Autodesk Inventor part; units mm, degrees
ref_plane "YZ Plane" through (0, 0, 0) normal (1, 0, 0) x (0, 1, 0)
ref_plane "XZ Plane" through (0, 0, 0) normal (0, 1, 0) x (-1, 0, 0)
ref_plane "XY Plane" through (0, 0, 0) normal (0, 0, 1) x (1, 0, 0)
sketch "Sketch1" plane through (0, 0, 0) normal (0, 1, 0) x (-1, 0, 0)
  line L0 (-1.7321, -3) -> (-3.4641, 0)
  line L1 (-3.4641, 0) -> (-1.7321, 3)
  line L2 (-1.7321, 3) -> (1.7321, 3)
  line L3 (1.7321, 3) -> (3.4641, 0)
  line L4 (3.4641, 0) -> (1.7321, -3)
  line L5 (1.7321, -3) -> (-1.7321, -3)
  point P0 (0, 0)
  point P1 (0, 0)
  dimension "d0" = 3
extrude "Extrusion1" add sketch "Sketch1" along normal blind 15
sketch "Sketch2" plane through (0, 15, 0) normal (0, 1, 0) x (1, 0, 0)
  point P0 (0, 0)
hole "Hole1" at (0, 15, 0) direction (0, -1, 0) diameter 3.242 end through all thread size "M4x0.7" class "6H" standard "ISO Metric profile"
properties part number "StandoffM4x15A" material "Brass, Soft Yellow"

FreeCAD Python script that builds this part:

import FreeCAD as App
import Part
import Sketcher
Q = App.Units.Quantity


def add_polygon(sketch, points):
    """Adds a closed chain of lines whose ends are joined by coincident constraints."""
    first, n = sketch.GeometryCount, len(points)
    for a, b in zip(points, points[1:] + points[:1]):
        sketch.addGeometry(Part.LineSegment(App.Vector(*a, 0), App.Vector(*b, 0)), False)
    for i in range(n):
        sketch.addConstraint(Sketcher.Constraint("Coincident", first + i, 2, first + (i + 1) % n, 1))

doc = App.newDocument("Part")
body = doc.addObject("PartDesign::Body", "Body")

sketch1 = body.newObject("Sketcher::SketchObject", "Sketch")
sketch1.AttachmentSupport = (doc.getObject("XZ_Plane"), [""])
sketch1.MapMode = "FlatFace"
add_polygon(sketch1, [(3.5, 0), (1.7, -3), (-1.7, -3), (-3.5, 0), (-1.7, 3), (1.7, 3)])
sketch1.addConstraint([
    Sketcher.Constraint("Horizontal", 1),
    Sketcher.Constraint("Horizontal", 4),
    Sketcher.Constraint("Symmetric", 0, 2, 3, 2, -1, 1),
    Sketcher.Constraint("Symmetric", 2, 2, 5, 2, -1, 1),
    Sketcher.Constraint("PointOnObject", 2, 2, -1),
    Sketcher.Constraint("Parallel", 2, 5),
    Sketcher.Constraint("Vertical", 1, 2, 3, 2),
    Sketcher.Constraint("DistanceY", 0, 2, -1, 1, 3.0),
    Sketcher.Constraint("Angle", 0, Q("-119.9993 deg")),
    Sketcher.Constraint("DistanceX", 1, 2, 1, 1, 3.4642),
])
pad1 = body.newObject("PartDesign::Pad", "Pad")
pad1.Profile = sketch1
pad1.Length = 15
pad1.Reversed = True

sketch2 = body.newObject("Sketcher::SketchObject", "Sketch001")
sketch2.AttachmentSupport = (doc.getObject("XZ_Plane"), [""])
sketch2.MapMode = "FlatFace"
sketch2.AttachmentOffset = App.Placement(App.Vector(0, 0, -15), App.Rotation())
sketch2.addGeometry(Part.Circle(App.Vector(0, 0, 0), App.Vector(0, 0, 1), 1.6), False)
sketch2.addConstraint([
    Sketcher.Constraint("Coincident", 0, 3, -1, 1),
    Sketcher.Constraint("Diameter", 0, 3.242),
])
doc.recompute()
hole = body.newObject("PartDesign::Hole", "Hole")
hole.Profile = sketch2
hole.ThreadType = "None"
hole.Diameter = 3.242
hole.DepthType = "ThroughAll"
hole.Reversed = True

doc.recompute()
